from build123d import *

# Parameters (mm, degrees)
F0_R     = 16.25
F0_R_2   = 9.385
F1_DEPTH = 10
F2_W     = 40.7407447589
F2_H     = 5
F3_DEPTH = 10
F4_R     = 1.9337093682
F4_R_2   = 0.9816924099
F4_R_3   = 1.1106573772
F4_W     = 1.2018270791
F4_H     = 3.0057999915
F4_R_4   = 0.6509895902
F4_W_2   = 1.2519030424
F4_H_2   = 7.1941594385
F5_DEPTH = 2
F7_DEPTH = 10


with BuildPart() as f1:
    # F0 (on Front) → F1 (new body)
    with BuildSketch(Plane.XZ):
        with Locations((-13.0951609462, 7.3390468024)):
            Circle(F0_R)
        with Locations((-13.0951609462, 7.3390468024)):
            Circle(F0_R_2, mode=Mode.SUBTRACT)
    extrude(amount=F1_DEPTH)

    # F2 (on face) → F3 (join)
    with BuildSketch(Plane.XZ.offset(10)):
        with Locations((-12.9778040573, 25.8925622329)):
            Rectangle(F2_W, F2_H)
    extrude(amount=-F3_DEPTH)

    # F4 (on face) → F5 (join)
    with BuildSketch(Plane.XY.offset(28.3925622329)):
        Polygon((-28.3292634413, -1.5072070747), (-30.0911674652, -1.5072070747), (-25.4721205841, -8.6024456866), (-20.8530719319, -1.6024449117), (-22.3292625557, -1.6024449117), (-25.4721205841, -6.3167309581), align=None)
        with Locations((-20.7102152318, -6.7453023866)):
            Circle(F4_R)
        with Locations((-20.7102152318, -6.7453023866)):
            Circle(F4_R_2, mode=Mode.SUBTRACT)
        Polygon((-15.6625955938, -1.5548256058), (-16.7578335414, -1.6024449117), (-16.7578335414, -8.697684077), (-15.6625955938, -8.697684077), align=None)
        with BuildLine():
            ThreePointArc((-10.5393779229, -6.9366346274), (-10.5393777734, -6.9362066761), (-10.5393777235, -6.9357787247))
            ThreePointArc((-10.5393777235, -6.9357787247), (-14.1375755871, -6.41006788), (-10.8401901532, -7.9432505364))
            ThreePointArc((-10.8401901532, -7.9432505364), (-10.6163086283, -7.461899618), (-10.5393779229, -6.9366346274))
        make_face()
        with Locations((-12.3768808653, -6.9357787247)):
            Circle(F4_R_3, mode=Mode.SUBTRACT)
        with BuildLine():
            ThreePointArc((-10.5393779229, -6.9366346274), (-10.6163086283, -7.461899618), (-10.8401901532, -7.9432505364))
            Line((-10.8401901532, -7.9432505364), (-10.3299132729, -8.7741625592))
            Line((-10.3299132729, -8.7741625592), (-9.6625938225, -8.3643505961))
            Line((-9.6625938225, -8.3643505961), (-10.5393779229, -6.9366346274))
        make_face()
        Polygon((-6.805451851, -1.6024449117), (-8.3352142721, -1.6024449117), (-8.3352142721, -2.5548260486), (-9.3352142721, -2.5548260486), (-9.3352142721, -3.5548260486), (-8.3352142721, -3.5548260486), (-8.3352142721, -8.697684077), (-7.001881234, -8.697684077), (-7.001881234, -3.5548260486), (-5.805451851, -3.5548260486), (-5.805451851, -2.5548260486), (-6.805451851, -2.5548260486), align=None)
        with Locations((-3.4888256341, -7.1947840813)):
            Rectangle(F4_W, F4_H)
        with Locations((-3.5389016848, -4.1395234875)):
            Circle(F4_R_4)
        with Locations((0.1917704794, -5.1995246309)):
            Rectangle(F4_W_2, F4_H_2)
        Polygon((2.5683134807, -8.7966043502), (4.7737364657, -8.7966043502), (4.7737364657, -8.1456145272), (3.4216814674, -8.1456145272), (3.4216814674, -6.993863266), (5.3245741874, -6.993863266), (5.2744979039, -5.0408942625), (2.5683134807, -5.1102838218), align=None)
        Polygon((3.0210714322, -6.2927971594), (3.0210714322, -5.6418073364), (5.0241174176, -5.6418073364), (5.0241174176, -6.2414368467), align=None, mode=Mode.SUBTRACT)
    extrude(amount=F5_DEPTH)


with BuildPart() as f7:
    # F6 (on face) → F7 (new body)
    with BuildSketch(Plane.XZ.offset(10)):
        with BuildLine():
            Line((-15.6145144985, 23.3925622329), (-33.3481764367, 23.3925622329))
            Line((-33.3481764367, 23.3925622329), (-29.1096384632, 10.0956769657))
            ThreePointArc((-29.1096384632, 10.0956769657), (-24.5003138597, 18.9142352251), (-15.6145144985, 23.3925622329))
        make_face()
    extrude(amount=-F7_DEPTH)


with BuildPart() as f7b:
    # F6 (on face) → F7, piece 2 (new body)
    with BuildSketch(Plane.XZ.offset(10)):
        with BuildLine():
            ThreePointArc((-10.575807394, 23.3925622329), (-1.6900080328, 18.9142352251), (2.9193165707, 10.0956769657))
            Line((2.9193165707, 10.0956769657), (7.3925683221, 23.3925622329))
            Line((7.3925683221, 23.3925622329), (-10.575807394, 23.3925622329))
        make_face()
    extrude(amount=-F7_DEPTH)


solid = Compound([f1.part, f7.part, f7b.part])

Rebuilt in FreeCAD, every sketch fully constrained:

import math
import FreeCAD as App
import Part
import Sketcher
from FreeCAD import Vector

doc = App.newDocument("Part")
body = doc.addObject("PartDesign::Body", "Body")

sketch1 = body.newObject("Sketcher::SketchObject", "Sketch")
sketch1.AttachmentSupport = (doc.getObject("XZ_Plane"), [""])
sketch1.MapMode = "FlatFace"
sketch1.addGeometry([
    Part.Circle(Vector(-13, 7, 0), Vector(0, 0, 1), 16),
    Part.Circle(Vector(-13, 7, 0), Vector(0, 0, 1), 9),
], False)
sketch1.addConstraint([
    Sketcher.Constraint("Coincident", 1, 3, 0, 3),
    Sketcher.Constraint("Diameter", 0, 32.5),
    Sketcher.Constraint("Diameter", 1, 18.77),
    Sketcher.Constraint("DistanceX", 0, 3, -1, 1, 13.095161),
    Sketcher.Constraint("DistanceY", -1, 1, 0, 3, 7.339047),
])
pad1 = body.newObject("PartDesign::Pad", "Pad")
pad1.Profile = sketch1
pad1.Length = 10

sketch2 = body.newObject("Sketcher::SketchObject", "Sketch001")
sketch2.AttachmentSupport = (doc.getObject("XZ_Plane"), [""])
sketch2.MapMode = "FlatFace"
sketch2.AttachmentOffset = App.Placement(Vector(0, 0, 10), App.Rotation())
sketch2.addGeometry([
    Part.LineSegment(Vector(-33, 28, 0), Vector(-33, 23, 0)),
    Part.LineSegment(Vector(-33, 23, 0), Vector(7, 23, 0)),
    Part.LineSegment(Vector(7, 23, 0), Vector(7, 28, 0)),
    Part.LineSegment(Vector(7, 28, 0), Vector(-33, 28, 0)),
], False)
sketch2.addConstraint([
    Sketcher.Constraint("Coincident", 0, 2, 1, 1),
    Sketcher.Constraint("Coincident", 1, 2, 2, 1),
    Sketcher.Constraint("Coincident", 2, 2, 3, 1),
    Sketcher.Constraint("Coincident", 3, 2, 0, 1),
    Sketcher.Constraint("Vertical", 0),
    Sketcher.Constraint("Horizontal", 1),
    Sketcher.Constraint("Vertical", 2),
    Sketcher.Constraint("Horizontal", 3),
    Sketcher.Constraint("DistanceY", 0, 2, 0, 1, 5.0),
    Sketcher.Constraint("DistanceX", 1, 1, 1, 2, 40.740745),
    Sketcher.Constraint("DistanceX", -1, 1, 1, 2, 7.392568),
    Sketcher.Constraint("DistanceY", -1, 1, 0, 2, 23.392562),
])
pad2 = body.newObject("PartDesign::Pad", "Pad001")
pad2.Profile = sketch2
pad2.Length = 10
pad2.Reversed = True

sketch3 = body.newObject("Sketcher::SketchObject", "Sketch002")
sketch3.AttachmentSupport = (doc.getObject("XY_Plane"), [""])
sketch3.MapMode = "FlatFace"
sketch3.AttachmentOffset = App.Placement(Vector(0, 0, 28.392562), App.Rotation())
sketch3.addGeometry([
    Part.LineSegment(Vector(-28.3293, -1.5072, 0), Vector(-30.0912, -1.5072, 0)),
    Part.LineSegment(Vector(-30.0912, -1.5072, 0), Vector(-25.4721, -8.6024, 0)),
    Part.LineSegment(Vector(-25.4721, -8.6024, 0), Vector(-20.8531, -1.6024, 0)),
    Part.LineSegment(Vector(-20.8531, -1.6024, 0), Vector(-22.3293, -1.6024, 0)),
    Part.LineSegment(Vector(-22.3293, -1.6024, 0), Vector(-25.4721, -6.3167, 0)),
    Part.LineSegment(Vector(-25.4721, -6.3167, 0), Vector(-28.3293, -1.5072, 0)),
    Part.Circle(Vector(-20.7102, -6.7453, 0), Vector(0, 0, 1), 1.9337),
    Part.Circle(Vector(-20.7102, -6.7453, 0), Vector(0, 0, 1), 0.9817),
    Part.LineSegment(Vector(-15.6626, -1.5548, 0), Vector(-16.7578, -1.6024, 0)),
    Part.LineSegment(Vector(-16.7578, -1.6024, 0), Vector(-16.7578, -8.6977, 0)),
    Part.LineSegment(Vector(-16.7578, -8.6977, 0), Vector(-15.6626, -8.6977, 0)),
    Part.LineSegment(Vector(-15.6626, -8.6977, 0), Vector(-15.6626, -1.5548, 0)),
    Part.ArcOfCircle(Part.Circle(Vector(-12.3782, -6.9358, 0), Vector(0, 0, 1), 1.8388), math.radians(-0.03), math.radians(0)),
    Part.ArcOfCircle(Part.Circle(Vector(-12.3769, -6.9358, 0), Vector(0, 0, 1), 1.8375), math.radians(0), math.radians(327)),
    Part.LineSegment(Vector(-10.8402, -7.9433, 0), Vector(-10.3299, -8.7742, 0)),
    Part.LineSegment(Vector(-10.3299, -8.7742, 0), Vector(-9.6626, -8.3644, 0)),
    Part.LineSegment(Vector(-9.6626, -8.3644, 0), Vector(-10.5394, -6.9366, 0)),
    Part.Circle(Vector(-12.3769, -6.9358, 0), Vector(0, 0, 1), 1.1107),
    Part.LineSegment(Vector(-6.8055, -1.6024, 0), Vector(-8.3352, -1.6024, 0)),
    Part.LineSegment(Vector(-8.3352, -1.6024, 0), Vector(-8.3352, -2.5548, 0)),
    Part.LineSegment(Vector(-8.3352, -2.5548, 0), Vector(-9.3352, -2.5548, 0)),
    Part.LineSegment(Vector(-9.3352, -2.5548, 0), Vector(-9.3352, -3.5548, 0)),
    Part.LineSegment(Vector(-9.3352, -3.5548, 0), Vector(-8.3352, -3.5548, 0)),
    Part.LineSegment(Vector(-8.3352, -3.5548, 0), Vector(-8.3352, -8.6977, 0)),
    Part.LineSegment(Vector(-8.3352, -8.6977, 0), Vector(-7.0019, -8.6977, 0)),
    Part.LineSegment(Vector(-7.0019, -8.6977, 0), Vector(-7.0019, -3.5548, 0)),
    Part.LineSegment(Vector(-7.0019, -3.5548, 0), Vector(-5.8055, -3.5548, 0)),
    Part.LineSegment(Vector(-5.8055, -3.5548, 0), Vector(-5.8055, -2.5548, 0)),
    Part.LineSegment(Vector(-5.8055, -2.5548, 0), Vector(-6.8055, -2.5548, 0)),
    Part.LineSegment(Vector(-6.8055, -2.5548, 0), Vector(-6.8055, -1.6024, 0)),
    Part.LineSegment(Vector(-4.0897, -5.6919, 0), Vector(-4.0897, -8.6977, 0)),
    Part.LineSegment(Vector(-4.0897, -8.6977, 0), Vector(-2.8879, -8.6977, 0)),
    Part.LineSegment(Vector(-2.8879, -8.6977, 0), Vector(-2.8879, -5.6919, 0)),
    Part.LineSegment(Vector(-2.8879, -5.6919, 0), Vector(-4.0897, -5.6919, 0)),
    Part.Circle(Vector(-3.5389, -4.1395, 0), Vector(0, 0, 1), 0.651),
    Part.LineSegment(Vector(-0.4342, -1.6024, 0), Vector(-0.4342, -8.7966, 0)),
    Part.LineSegment(Vector(-0.4342, -8.7966, 0), Vector(0.8177, -8.7966, 0)),
    Part.LineSegment(Vector(0.8177, -8.7966, 0), Vector(0.8177, -1.6024, 0)),
    Part.LineSegment(Vector(0.8177, -1.6024, 0), Vector(-0.4342, -1.6024, 0)),
    Part.LineSegment(Vector(2.5683, -8.7966, 0), Vector(4.7737, -8.7966, 0)),
    Part.LineSegment(Vector(4.7737, -8.7966, 0), Vector(4.7737, -8.1456, 0)),
    Part.LineSegment(Vector(4.7737, -8.1456, 0), Vector(3.4217, -8.1456, 0)),
    Part.LineSegment(Vector(3.4217, -8.1456, 0), Vector(3.4217, -6.9939, 0)),
    Part.LineSegment(Vector(3.4217, -6.9939, 0), Vector(5.3246, -6.9939, 0)),
    Part.LineSegment(Vector(5.3246, -6.9939, 0), Vector(5.2745, -5.0409, 0)),
    Part.LineSegment(Vector(5.2745, -5.0409, 0), Vector(2.5683, -5.1103, 0)),
    Part.LineSegment(Vector(2.5683, -5.1103, 0), Vector(2.5683, -8.7966, 0)),
    Part.LineSegment(Vector(5.0241, -6.2414, 0), Vector(3.0211, -6.2928, 0)),
    Part.LineSegment(Vector(3.0211, -6.2928, 0), Vector(3.0211, -5.6418, 0)),
    Part.LineSegment(Vector(3.0211, -5.6418, 0), Vector(5.0241, -5.6418, 0)),
    Part.LineSegment(Vector(5.0241, -5.6418, 0), Vector(5.0241, -6.2414, 0)),
], False)
sketch3.addConstraint([
    Sketcher.Constraint("Coincident", 0, 2, 1, 1),
    Sketcher.Constraint("Coincident", 1, 2, 2, 1),
    Sketcher.Constraint("Coincident", 2, 2, 3, 1),
    Sketcher.Constraint("Coincident", 3, 2, 4, 1),
    Sketcher.Constraint("Coincident", 4, 2, 5, 1),
    Sketcher.Constraint("Coincident", 5, 2, 0, 1),
    Sketcher.Constraint("Coincident", 8, 2, 9, 1),
    Sketcher.Constraint("Coincident", 9, 2, 10, 1),
    Sketcher.Constraint("Coincident", 10, 2, 11, 1),
    Sketcher.Constraint("Coincident", 11, 2, 8, 1),
    Sketcher.Constraint("Tangent", 12, 2, 13, 1),
    Sketcher.Constraint("Coincident", 13, 2, 14, 1),
    Sketcher.Constraint("Coincident", 14, 2, 15, 1),
    Sketcher.Constraint("Coincident", 15, 2, 16, 1),
    Sketcher.Constraint("Coincident", 16, 2, 12, 1),
    Sketcher.Constraint("Coincident", 18, 2, 19, 1),
    Sketcher.Constraint("Coincident", 19, 2, 20, 1),
    Sketcher.Constraint("Coincident", 20, 2, 21, 1),
    Sketcher.Constraint("Coincident", 21, 2, 22, 1),
    Sketcher.Constraint("Coincident", 22, 2, 23, 1),
    Sketcher.Constraint("Coincident", 23, 2, 24, 1),
    Sketcher.Constraint("Coincident", 24, 2, 25, 1),
    Sketcher.Constraint("Coincident", 25, 2, 26, 1),
    Sketcher.Constraint("Coincident", 26, 2, 27, 1),
    Sketcher.Constraint("Coincident", 27, 2, 28, 1),
    Sketcher.Constraint("Coincident", 28, 2, 29, 1),
    Sketcher.Constraint("Coincident", 29, 2, 18, 1),
    Sketcher.Constraint("Coincident", 30, 2, 31, 1),
    Sketcher.Constraint("Coincident", 31, 2, 32, 1),
    Sketcher.Constraint("Coincident", 32, 2, 33, 1),
    Sketcher.Constraint("Coincident", 33, 2, 30, 1),
    Sketcher.Constraint("Coincident", 35, 2, 36, 1),
    Sketcher.Constraint("Coincident", 36, 2, 37, 1),
    Sketcher.Constraint("Coincident", 37, 2, 38, 1),
    Sketcher.Constraint("Coincident", 38, 2, 35, 1),
    Sketcher.Constraint("Coincident", 39, 2, 40, 1),
    Sketcher.Constraint("Coincident", 40, 2, 41, 1),
    Sketcher.Constraint("Coincident", 41, 2, 42, 1),
    Sketcher.Constraint("Coincident", 42, 2, 43, 1),
    Sketcher.Constraint("Coincident", 43, 2, 44, 1),
    Sketcher.Constraint("Coincident", 44, 2, 45, 1),
    Sketcher.Constraint("Coincident", 45, 2, 46, 1),
    Sketcher.Constraint("Coincident", 46, 2, 39, 1),
    Sketcher.Constraint("Coincident", 47, 2, 48, 1),
    Sketcher.Constraint("Coincident", 48, 2, 49, 1),
    Sketcher.Constraint("Coincident", 49, 2, 50, 1),
    Sketcher.Constraint("Coincident", 50, 2, 47, 1),
    Sketcher.Constraint("Horizontal", 0),
    Sketcher.Constraint("Horizontal", 3),
    Sketcher.Constraint("Vertical", 9),
    Sketcher.Constraint("Horizontal", 10),
    Sketcher.Constraint("Vertical", 11),
    Sketcher.Constraint("Horizontal", 18),
    Sketcher.Constraint("Vertical", 19),
    Sketcher.Constraint("Horizontal", 20),
    Sketcher.Constraint("Vertical", 21),
    Sketcher.Constraint("Horizontal", 22),
    Sketcher.Constraint("Vertical", 23),
    Sketcher.Constraint("Horizontal", 24),
    Sketcher.Constraint("Vertical", 25),
    Sketcher.Constraint("Horizontal", 26),
    Sketcher.Constraint("Vertical", 27),
    Sketcher.Constraint("Horizontal", 28),
    Sketcher.Constraint("Vertical", 29),
    Sketcher.Constraint("Vertical", 30),
    Sketcher.Constraint("Horizontal", 31),
    Sketcher.Constraint("Vertical", 32),
    Sketcher.Constraint("Horizontal", 33),
    Sketcher.Constraint("Vertical", 35),
    Sketcher.Constraint("Horizontal", 36),
    Sketcher.Constraint("Vertical", 37),
    Sketcher.Constraint("Horizontal", 38),
    Sketcher.Constraint("Horizontal", 39),
    Sketcher.Constraint("Vertical", 40),
    Sketcher.Constraint("Horizontal", 41),
    Sketcher.Constraint("Vertical", 42),
    Sketcher.Constraint("Horizontal", 43),
    Sketcher.Constraint("Vertical", 46),
    Sketcher.Constraint("Vertical", 48),
    Sketcher.Constraint("Horizontal", 49),
    Sketcher.Constraint("Vertical", 50),
    Sketcher.Constraint("Coincident", 7, 3, 6, 3),
    Sketcher.Constraint("Coincident", 17, 3, 13, 3),
    Sketcher.Constraint("Perpendicular", 14, 15),
    Sketcher.Constraint("Perpendicular", 15, 16),
    Sketcher.Constraint("Perpendicular", 44, 45),
    Sketcher.Constraint("Parallel", 45, 47),
    Sketcher.Constraint("Horizontal", 3, 2, 8, 2),
    Sketcher.Constraint("Horizontal", 17, 3, 12, 2),
    Sketcher.Constraint("Horizontal", 8, 2, 18, 2),
    Sketcher.Constraint("Horizontal", 10, 2, 23, 2),
    Sketcher.Constraint("Horizontal", 22, 2, 25, 2),
    Sketcher.Constraint("Horizontal", 20, 2, 27, 2),
    Sketcher.Constraint("Horizontal", 24, 2, 30, 2),
    Sketcher.Constraint("Horizontal", 29, 2, 37, 2),
    Sketcher.Constraint("Horizontal", 36, 2, 39, 2),
    Sketcher.Constraint("Vertical", 1, 2, 4, 2),
    Sketcher.Constraint("Vertical", 19, 2, 22, 2),
    Sketcher.Constraint("Equal", 22, 28),
    Sketcher.Constraint("Equal", 28, 21),
    Sketcher.Constraint("Equal", 40, 48),
    Sketcher.Constraint("DistanceX", 20, 2, 20, 1, 1.0),
    Sketcher.Constraint("DistanceY", 1, 2, 2, 2, 7.000001),
    Sketcher.Constraint("DistanceX", 5, 2, 3, 2, 6.000001),
    Sketcher.Constraint("Diameter", 6, 3.867419),
    Sketcher.Constraint("Diameter", 34, 1.301979),
    Sketcher.Constraint("Radius", 12, 1.838778),
    Sketcher.Constraint("Diameter", 7, 1.963385),
    Sketcher.Constraint("Diameter", 17, 2.221315),
    Sketcher.Constraint("DistanceY", 30, 2, 30, 1, 3.0058),
    Sketcher.Constraint("Radius", 13, 1.837503),
    Sketcher.Constraint("DistanceX", 3, 2, 3, 1, 1.476191),
    Sketcher.Constraint("DistanceX", 26, 1, 26, 2, 1.196429),
    Sketcher.Constraint("DistanceY", 9, 2, 9, 1, 7.095239),
    Sketcher.Constraint("DistanceY", 11, 1, 11, 2, 7.142858),
    Sketcher.Constraint("DistanceY", 19, 2, 19, 1, 0.952381),
    Sketcher.Constraint("DistanceY", 35, 2, 35, 1, 7.194159),
    Sketcher.Constraint("DistanceY", 40, 1, 40, 2, 0.65099),
    Sketcher.Constraint("DistanceY", 42, 1, 42, 2, 1.151751),
    Sketcher.Constraint("DistanceY", 46, 2, 46, 1, 3.686321),
    Sketcher.Constraint("DistanceY", 50, 2, 50, 1, 0.59963),
    Sketcher.Constraint("DistanceX", 34, 3, -1, 1, 3.538902),
    Sketcher.Constraint("DistanceY", 15, 2, 13, 2, 0.4211),
    Sketcher.Constraint("DistanceX", 14, 2, 23, 2, 1.994699),
    Sketcher.Constraint("Distance", 14, 0.975088),
    Sketcher.Constraint("Distance", 15, 0.78311),
    Sketcher.Constraint("Distance", 44, 1.953611),
    Sketcher.Constraint("DistanceX", 0, 2, 0, 1, 1.761904),
    Sketcher.Constraint("DistanceX", 10, 1, 10, 2, 1.095238),
    Sketcher.Constraint("DistanceX", 18, 2, 18, 1, 1.529762),
    Sketcher.Constraint("DistanceX", 31, 1, 31, 2, 1.201827),
    Sketcher.Constraint("DistanceX", 36, 1, 36, 2, 1.251903),
    Sketcher.Constraint("DistanceX", 39, 1, 39, 2, 2.205423),
    Sketcher.Constraint("DistanceX", 41, 2, 41, 1, 1.352055),
    Sketcher.Constraint("DistanceX", 43, 1, 43, 2, 1.902893),
    Sketcher.Constraint("DistanceY", 12, 3, -1, 1, 6.935778),
    Sketcher.Constraint("DistanceX", 13, 3, -1, 1, 12.376881),
    Sketcher.Constraint("DistanceX", 1, 2, -1, 1, 25.472121),
    Sketcher.Constraint("DistanceX", 2, 2, -1, 1, 20.853072),
    Sketcher.Constraint("DistanceY", 4, 2, -1, 1, 6.316731),
    Sketcher.Constraint("DistanceX", 13, 2, -1, 1, 10.84019),
    Sketcher.Constraint("DistanceX", 30, 2, -1, 1, 4.089739),
    Sketcher.Constraint("DistanceX", 35, 2, -1, 1, 0.434181),
    Sketcher.Constraint("DistanceX", -1, 1, 41, 2, 3.421681),
    Sketcher.Constraint("DistanceX", -1, 1, 47, 2, 3.021071),
    Sketcher.Constraint("DistanceX", 6, 3, 12, 3, 8.332059),
    Sketcher.Constraint("DistanceY", 6, 3, 34, 3, 2.605779),
    Sketcher.Constraint("DistanceY", 12, 3, 0, 2, 5.428571),
    Sketcher.Constraint("DistanceY", 1, 2, 0, 2, 7.095239),
    Sketcher.Constraint("DistanceY", 6, 3, 4, 2, 0.428571),
    Sketcher.Constraint("DistanceX", 2, 2, 8, 2, 4.095238),
    Sketcher.Constraint("DistanceY", 47, 2, -1, 1, 6.292797),
])
pad3 = body.newObject("PartDesign::Pad", "Pad002")
pad3.Profile = sketch3
pad3.Length = 2
body2 = doc.addObject("PartDesign::Body", "Body001")

sketch4 = body2.newObject("Sketcher::SketchObject", "Sketch003")
sketch4.AttachmentSupport = (doc.getObject("XZ_Plane001"), [""])
sketch4.MapMode = "FlatFace"
sketch4.AttachmentOffset = App.Placement(Vector(0, 0, 10), App.Rotation())
sketch4.addGeometry([
    Part.LineSegment(Vector(-16, 23, 0), Vector(-33, 23, 0)),
    Part.LineSegment(Vector(-33, 23, 0), Vector(-29, 10, 0)),
    Part.ArcOfCircle(Part.Circle(Vector(-13, 7, 0), Vector(0, 0, 1), 16), math.radians(99), math.radians(170)),
], False)
sketch4.addConstraint([
    Sketcher.Constraint("Coincident", 0, 2, 1, 1),
    Sketcher.Constraint("Coincident", 1, 2, 2, 2),
    Sketcher.Constraint("Coincident", 2, 1, 0, 1),
    Sketcher.Constraint("Horizontal", 0),
    Sketcher.Constraint("Radius", 2, 16.25),
    Sketcher.Constraint("DistanceX", 0, 2, 0, 1, 17.733662),
    Sketcher.Constraint("DistanceX", 2, 3, -1, 1, 13.095161),
    Sketcher.Constraint("DistanceX", 1, 2, -1, 1, 29.109638),
    Sketcher.Constraint("Distance", 1, 13.956087),
    Sketcher.Constraint("DistanceY", -1, 1, 2, 3, 7.339047),
])
pad4 = body2.newObject("PartDesign::Pad", "Pad003")
pad4.Profile = sketch4
pad4.Length = 10
pad4.Reversed = True
body3 = doc.addObject("PartDesign::Body", "Body002")

sketch5 = body3.newObject("Sketcher::SketchObject", "Sketch004")
sketch5.AttachmentSupport = (doc.getObject("XZ_Plane002"), [""])
sketch5.MapMode = "FlatFace"
sketch5.AttachmentOffset = App.Placement(Vector(0, 0, 10), App.Rotation())
sketch5.addGeometry([
    Part.ArcOfCircle(Part.Circle(Vector(-13, 7, 0), Vector(0, 0, 1), 16), math.radians(10), math.radians(81)),
    Part.LineSegment(Vector(3, 10, 0), Vector(7, 23, 0)),
    Part.LineSegment(Vector(7, 23, 0), Vector(-11, 23, 0)),
], False)
sketch5.addConstraint([
    Sketcher.Constraint("Coincident", 0, 1, 1, 1),
    Sketcher.Constraint("Coincident", 1, 2, 2, 1),
    Sketcher.Constraint("Coincident", 2, 2, 0, 2),
    Sketcher.Constraint("Horizontal", 2),
    Sketcher.Constraint("Radius", 0, 16.25),
    Sketcher.Constraint("DistanceX", 2, 2, 2, 1, 17.968376),
    Sketcher.Constraint("DistanceX", 0, 3, -1, 1, 13.095161),
    Sketcher.Constraint("DistanceX", -1, 1, 1, 2, 7.392568),
    Sketcher.Constraint("DistanceY", 0, 3, 0, 1, 2.75663),
    Sketcher.Constraint("DistanceY", -1, 1, 0, 3, 7.339047),
])
pad5 = body3.newObject("PartDesign::Pad", "Pad004")
pad5.Profile = sketch5
pad5.Length = 10
pad5.Reversed = True

doc.recompute()
